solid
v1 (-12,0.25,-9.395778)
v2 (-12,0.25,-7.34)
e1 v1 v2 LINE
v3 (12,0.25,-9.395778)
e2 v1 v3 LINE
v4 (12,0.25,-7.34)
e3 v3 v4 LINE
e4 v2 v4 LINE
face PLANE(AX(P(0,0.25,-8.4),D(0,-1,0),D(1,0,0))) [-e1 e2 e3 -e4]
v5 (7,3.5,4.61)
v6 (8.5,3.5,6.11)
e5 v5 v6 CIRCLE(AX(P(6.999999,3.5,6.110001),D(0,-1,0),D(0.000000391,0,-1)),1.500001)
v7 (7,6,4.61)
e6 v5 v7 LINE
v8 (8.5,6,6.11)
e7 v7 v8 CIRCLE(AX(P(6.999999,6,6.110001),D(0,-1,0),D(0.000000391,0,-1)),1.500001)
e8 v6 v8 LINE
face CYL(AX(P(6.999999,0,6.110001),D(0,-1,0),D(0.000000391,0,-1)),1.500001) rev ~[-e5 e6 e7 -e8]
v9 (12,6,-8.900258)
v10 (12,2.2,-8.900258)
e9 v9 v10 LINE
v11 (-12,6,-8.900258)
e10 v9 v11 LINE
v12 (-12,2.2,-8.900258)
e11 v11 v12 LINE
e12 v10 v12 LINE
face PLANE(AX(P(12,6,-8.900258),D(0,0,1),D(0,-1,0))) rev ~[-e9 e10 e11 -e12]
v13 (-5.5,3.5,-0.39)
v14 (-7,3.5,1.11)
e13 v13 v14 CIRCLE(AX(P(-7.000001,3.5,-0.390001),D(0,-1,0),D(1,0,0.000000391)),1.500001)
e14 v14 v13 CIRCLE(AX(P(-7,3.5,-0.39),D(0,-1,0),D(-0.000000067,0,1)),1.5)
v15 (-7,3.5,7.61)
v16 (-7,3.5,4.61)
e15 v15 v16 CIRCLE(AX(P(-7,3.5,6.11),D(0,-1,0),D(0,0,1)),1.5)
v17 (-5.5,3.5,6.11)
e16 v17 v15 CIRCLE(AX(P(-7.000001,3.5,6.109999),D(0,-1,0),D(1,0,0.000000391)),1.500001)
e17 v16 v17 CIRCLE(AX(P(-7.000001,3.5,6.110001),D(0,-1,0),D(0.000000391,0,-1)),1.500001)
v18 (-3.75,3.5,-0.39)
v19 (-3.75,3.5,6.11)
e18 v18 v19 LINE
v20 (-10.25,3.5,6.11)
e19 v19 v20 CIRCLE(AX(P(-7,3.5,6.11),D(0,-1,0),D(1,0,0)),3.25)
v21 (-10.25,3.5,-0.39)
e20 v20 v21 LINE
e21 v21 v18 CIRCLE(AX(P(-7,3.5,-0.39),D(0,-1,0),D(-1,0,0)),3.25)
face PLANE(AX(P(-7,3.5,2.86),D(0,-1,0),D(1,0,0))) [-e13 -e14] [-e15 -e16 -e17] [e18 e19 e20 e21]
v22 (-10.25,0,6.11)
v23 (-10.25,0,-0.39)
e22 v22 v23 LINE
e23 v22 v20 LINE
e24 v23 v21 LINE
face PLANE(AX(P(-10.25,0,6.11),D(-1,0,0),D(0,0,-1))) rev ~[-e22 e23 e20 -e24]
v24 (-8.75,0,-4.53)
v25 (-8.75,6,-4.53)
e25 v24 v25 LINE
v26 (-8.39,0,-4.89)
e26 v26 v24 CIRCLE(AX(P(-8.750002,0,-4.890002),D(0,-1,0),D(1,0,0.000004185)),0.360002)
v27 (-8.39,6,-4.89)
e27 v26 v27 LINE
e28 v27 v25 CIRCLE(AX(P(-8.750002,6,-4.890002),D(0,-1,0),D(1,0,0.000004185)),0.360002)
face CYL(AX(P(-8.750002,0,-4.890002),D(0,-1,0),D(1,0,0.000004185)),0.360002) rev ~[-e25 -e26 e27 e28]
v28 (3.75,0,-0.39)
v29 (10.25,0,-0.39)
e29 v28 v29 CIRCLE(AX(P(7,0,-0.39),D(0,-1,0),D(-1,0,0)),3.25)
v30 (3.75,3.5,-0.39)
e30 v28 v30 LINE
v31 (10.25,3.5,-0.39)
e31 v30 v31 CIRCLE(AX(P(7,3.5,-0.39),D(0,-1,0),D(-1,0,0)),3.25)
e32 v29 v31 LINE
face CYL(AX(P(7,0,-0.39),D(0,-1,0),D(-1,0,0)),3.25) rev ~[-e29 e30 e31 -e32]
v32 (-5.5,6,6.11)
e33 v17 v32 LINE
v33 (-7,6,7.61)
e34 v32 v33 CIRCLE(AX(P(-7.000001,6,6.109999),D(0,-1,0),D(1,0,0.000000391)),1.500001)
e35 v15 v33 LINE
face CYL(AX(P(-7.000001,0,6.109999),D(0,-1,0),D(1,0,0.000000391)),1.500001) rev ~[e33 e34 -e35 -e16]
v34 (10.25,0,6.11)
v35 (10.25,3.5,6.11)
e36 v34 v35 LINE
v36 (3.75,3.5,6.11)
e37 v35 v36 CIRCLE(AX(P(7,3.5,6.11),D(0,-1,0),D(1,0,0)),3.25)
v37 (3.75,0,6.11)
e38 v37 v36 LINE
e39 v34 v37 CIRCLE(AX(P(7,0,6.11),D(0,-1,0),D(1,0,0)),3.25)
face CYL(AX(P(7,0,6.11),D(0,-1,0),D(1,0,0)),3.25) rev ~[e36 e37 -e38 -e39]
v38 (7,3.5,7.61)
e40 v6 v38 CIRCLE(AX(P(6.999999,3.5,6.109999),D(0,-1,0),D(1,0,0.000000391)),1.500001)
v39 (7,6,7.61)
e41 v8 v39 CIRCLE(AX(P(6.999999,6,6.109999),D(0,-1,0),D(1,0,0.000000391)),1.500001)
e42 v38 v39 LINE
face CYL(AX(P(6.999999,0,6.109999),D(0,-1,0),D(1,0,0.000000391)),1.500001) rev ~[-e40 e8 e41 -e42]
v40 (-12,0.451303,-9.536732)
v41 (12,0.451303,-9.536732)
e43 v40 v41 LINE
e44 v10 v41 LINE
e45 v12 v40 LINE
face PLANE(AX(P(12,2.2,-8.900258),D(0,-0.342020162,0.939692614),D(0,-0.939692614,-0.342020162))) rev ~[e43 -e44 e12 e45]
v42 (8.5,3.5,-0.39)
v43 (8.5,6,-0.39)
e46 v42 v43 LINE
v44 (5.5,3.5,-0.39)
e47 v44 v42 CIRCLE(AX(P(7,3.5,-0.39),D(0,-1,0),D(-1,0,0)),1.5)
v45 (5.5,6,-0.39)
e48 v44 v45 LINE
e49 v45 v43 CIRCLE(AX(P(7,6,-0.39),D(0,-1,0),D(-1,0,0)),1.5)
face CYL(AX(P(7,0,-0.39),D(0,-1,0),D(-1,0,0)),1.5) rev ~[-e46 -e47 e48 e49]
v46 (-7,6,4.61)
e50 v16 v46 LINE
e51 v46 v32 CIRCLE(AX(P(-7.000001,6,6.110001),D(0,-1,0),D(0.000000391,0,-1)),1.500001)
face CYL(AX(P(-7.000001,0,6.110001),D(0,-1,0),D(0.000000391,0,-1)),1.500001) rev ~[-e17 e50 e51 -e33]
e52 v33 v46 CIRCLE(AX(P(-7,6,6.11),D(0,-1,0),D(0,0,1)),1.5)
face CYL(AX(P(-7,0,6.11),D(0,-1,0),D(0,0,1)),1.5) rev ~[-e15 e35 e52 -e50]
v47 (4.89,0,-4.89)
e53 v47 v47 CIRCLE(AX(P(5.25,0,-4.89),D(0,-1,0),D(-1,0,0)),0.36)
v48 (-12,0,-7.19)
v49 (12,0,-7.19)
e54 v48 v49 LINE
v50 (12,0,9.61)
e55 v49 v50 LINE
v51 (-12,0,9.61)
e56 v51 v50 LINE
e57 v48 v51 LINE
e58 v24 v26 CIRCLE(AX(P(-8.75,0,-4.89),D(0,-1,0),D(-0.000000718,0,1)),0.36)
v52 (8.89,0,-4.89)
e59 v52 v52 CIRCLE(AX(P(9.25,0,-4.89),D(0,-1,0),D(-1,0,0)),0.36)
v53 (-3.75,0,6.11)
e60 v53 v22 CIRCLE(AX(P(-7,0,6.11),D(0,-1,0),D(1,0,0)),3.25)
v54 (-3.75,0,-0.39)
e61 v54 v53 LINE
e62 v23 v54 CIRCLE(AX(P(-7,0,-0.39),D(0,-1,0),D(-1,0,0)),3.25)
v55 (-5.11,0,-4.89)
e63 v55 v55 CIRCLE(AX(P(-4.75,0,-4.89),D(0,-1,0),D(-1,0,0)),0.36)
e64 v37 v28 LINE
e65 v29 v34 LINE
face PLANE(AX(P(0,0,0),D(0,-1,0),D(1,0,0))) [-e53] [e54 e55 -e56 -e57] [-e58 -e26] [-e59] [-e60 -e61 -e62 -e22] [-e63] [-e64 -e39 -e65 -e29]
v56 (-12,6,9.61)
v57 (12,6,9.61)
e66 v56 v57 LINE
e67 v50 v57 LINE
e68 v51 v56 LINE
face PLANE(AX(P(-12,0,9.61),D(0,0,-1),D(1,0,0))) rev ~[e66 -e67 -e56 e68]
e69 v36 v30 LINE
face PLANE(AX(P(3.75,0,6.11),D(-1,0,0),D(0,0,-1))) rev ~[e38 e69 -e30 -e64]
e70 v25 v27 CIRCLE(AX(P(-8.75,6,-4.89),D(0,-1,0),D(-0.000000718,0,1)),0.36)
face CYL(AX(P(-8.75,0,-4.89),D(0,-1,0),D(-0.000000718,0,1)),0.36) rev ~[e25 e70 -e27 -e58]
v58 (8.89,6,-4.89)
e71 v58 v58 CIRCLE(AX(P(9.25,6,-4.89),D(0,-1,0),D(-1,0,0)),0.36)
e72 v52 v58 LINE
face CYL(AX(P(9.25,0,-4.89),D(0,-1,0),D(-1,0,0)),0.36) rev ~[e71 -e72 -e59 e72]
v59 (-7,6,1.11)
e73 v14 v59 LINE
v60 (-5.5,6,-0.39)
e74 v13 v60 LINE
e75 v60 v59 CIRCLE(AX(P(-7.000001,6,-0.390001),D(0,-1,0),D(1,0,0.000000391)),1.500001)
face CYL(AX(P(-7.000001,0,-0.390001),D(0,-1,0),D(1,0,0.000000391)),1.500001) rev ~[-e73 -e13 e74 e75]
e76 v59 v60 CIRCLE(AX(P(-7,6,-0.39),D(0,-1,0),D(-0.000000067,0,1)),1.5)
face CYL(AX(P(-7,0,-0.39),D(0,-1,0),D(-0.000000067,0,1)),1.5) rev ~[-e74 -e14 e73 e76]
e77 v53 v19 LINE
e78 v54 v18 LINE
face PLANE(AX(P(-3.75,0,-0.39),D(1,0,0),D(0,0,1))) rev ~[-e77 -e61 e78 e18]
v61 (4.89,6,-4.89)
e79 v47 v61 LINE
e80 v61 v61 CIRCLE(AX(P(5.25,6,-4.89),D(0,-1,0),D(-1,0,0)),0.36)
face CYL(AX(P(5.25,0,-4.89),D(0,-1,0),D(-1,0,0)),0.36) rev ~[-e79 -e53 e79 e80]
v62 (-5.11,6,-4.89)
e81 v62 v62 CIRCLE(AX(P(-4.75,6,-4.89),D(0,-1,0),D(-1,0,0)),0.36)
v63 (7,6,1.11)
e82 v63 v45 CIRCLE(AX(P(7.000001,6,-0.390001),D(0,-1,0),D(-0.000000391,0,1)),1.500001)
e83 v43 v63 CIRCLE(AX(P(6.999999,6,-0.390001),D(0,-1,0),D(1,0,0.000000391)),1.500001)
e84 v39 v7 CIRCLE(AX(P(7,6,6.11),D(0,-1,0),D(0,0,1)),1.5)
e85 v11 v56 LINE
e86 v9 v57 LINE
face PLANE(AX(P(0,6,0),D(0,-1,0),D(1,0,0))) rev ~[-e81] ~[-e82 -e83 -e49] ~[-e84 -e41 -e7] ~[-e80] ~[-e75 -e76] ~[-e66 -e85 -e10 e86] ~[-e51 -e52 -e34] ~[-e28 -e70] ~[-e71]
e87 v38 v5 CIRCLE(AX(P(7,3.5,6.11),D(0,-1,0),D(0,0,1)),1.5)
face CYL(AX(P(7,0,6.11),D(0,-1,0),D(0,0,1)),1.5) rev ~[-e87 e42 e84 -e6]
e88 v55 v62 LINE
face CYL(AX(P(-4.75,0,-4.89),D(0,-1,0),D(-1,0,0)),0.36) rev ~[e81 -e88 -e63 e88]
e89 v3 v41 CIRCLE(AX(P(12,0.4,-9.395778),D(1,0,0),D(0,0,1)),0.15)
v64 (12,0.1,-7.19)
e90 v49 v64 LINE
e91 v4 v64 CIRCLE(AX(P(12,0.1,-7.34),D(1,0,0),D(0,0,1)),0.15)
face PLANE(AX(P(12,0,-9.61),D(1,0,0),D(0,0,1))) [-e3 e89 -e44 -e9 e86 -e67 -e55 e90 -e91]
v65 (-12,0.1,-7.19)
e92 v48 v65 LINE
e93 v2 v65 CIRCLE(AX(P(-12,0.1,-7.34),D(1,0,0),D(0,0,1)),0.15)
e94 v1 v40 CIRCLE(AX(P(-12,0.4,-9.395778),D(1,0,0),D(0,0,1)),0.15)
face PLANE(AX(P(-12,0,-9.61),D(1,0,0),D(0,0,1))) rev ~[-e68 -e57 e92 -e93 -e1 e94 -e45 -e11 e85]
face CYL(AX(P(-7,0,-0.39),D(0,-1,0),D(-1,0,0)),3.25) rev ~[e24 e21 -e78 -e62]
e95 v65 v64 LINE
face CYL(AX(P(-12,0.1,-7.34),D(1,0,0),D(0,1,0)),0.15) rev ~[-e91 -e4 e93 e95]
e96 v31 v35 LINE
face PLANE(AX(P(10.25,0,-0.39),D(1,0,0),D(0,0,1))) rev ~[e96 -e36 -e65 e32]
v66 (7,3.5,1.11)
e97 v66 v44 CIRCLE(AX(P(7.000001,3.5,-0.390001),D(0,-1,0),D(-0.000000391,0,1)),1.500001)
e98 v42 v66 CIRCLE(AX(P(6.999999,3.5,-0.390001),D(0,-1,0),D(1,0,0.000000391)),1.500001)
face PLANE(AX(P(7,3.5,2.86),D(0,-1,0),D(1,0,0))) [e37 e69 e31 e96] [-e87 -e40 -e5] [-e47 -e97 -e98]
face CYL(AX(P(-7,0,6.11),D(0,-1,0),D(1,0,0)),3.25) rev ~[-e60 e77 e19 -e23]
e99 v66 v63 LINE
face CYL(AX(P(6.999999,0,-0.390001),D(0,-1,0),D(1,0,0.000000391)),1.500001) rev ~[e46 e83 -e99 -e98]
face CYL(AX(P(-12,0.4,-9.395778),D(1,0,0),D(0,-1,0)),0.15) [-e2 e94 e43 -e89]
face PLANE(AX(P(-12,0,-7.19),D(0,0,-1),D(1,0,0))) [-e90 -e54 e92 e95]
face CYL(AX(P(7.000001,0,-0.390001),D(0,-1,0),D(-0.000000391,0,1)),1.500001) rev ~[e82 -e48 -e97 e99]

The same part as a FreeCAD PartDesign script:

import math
import FreeCAD as App
import Part
import Sketcher

V = App.Vector
Q = App.Units.Quantity


def edges_at(feature, points):
    """Names of the edges that pass closest to the given points."""
    edges = feature.Shape.Edges
    near = lambda p: min(range(len(edges)), key=lambda i: edges[i].distToShape(Part.Vertex(*p))[0])
    return sorted({f"Edge{near(p) + 1}" for p in points})

doc = App.newDocument("Part")
body = doc.addObject("PartDesign::Body", "Body")

# Sketch on XZ plane
sketch1 = doc.addObject("Sketcher::SketchObject", "Sketch")
body.addObject(sketch1)
sketch1.AttachmentSupport = (doc.XZ_Plane, [""])
sketch1.MapMode = "FlatFace"
sketch1.addGeometry([
    Part.LineSegment(V(-12, 9.61, 0), V(-12, -9.61, 0)),
    Part.LineSegment(V(-12, -9.61, 0), V(12, -9.61, 0)),
    Part.LineSegment(V(12, -9.61, 0), V(12, 9.61, 0)),
    Part.LineSegment(V(12, 9.61, 0), V(-12, 9.61, 0)),
], False)
sketch1.addConstraint([
    Sketcher.Constraint("Coincident", 0, 2, 1, 1),
    Sketcher.Constraint("Coincident", 1, 2, 2, 1),
    Sketcher.Constraint("Coincident", 2, 2, 3, 1),
    Sketcher.Constraint("Coincident", 3, 2, 0, 1),
    Sketcher.Constraint("Vertical", 0),
    Sketcher.Constraint("Horizontal", 1),
    Sketcher.Constraint("Vertical", 2),
    Sketcher.Constraint("Horizontal", 3),
    Sketcher.Constraint("Symmetric", 0, 2, 2, 2, -1, 1),
    Sketcher.Constraint("DistanceX", 1, 1, 1, 2, Q("24 mm")),
    Sketcher.Constraint("DistanceY", 0, 2, 0, 1, Q("19.22 mm")),
])
pad1 = doc.addObject("PartDesign::Pad", "Pad")
body.addObject(pad1)
pad1.Profile = sketch1
pad1.Length = 6
pad1.Reversed = True

# Sketch on XZ plane
sketch2 = doc.addObject("Sketcher::SketchObject", "Sketch001")
body.addObject(sketch2)
sketch2.AttachmentSupport = (doc.XZ_Plane, [""])
sketch2.MapMode = "FlatFace"
sketch2.addGeometry([
    Part.ArcOfCircle(Part.Circle(V(-7.000001, 6.109999, 0), V(0, 0, 1), 1.500001), math.radians(0.000022), math.radians(89.999978)),  # 0
    Part.ArcOfCircle(Part.Circle(V(-7, 6.11, 0), V(0, 0, 1), 1.5), math.radians(90), math.radians(270)),  # 1
    Part.ArcOfCircle(Part.Circle(V(-7.000001, 6.110001, 0), V(0, 0, 1), 1.500001), math.radians(-89.999978), math.radians(-0.000022)),  # 2
    Part.ArcOfCircle(Part.Circle(V(7, 6.11, 0), V(0, 0, 1), 1.5), math.radians(90), math.radians(270)),  # 3
    Part.ArcOfCircle(Part.Circle(V(6.999999, 6.110001, 0), V(0, 0, 1), 1.500001), math.radians(-89.999978), math.radians(-0.000022)),  # 4
    Part.ArcOfCircle(Part.Circle(V(6.999999, 6.109999, 0), V(0, 0, 1), 1.500001), math.radians(0.000022), math.radians(89.999978)),  # 5
    Part.ArcOfCircle(Part.Circle(V(7.000001, -0.390001, 0), V(0, 0, 1), 1.500001), math.radians(90.000022), math.radians(179.999978)),  # 6
    Part.ArcOfCircle(Part.Circle(V(7, -0.39, 0), V(0, 0, 1), 1.5), math.radians(180), math.radians(360)),  # 7
    Part.ArcOfCircle(Part.Circle(V(6.999999, -0.390001, 0), V(0, 0, 1), 1.500001), math.radians(0.000022), math.radians(89.999978)),  # 8
    Part.ArcOfCircle(Part.Circle(V(-7.000001, -0.390001, 0), V(0, 0, 1), 1.500001), math.radians(0.000022), math.radians(89.999978)),  # 9
    Part.ArcOfCircle(Part.Circle(V(-7, -0.39, 0), V(0, 0, 1), 1.5), math.radians(90.000004), math.radians(359.999996)),  # 10
], False)
sketch2.addConstraint([
    Sketcher.Constraint("Tangent", 0, 2, 1, 1),
    Sketcher.Constraint("Tangent", 1, 2, 2, 1),
    Sketcher.Constraint("Tangent", 2, 2, 0, 1),
    Sketcher.Constraint("Tangent", 3, 2, 4, 1),
    Sketcher.Constraint("Tangent", 4, 2, 5, 1),
    Sketcher.Constraint("Tangent", 5, 2, 3, 1),
    Sketcher.Constraint("Tangent", 6, 2, 7, 1),
    Sketcher.Constraint("Tangent", 7, 2, 8, 1),
    Sketcher.Constraint("Tangent", 8, 2, 6, 1),
    Sketcher.Constraint("Tangent", 9, 1, 10, 2),
    Sketcher.Constraint("Coincident", 10, 1, 9, 2),
    Sketcher.Constraint("Equal", 2, 3),
    Sketcher.Constraint("Equal", 5, 6),
    Sketcher.Constraint("Equal", 8, 9),
    Sketcher.Constraint("Symmetric", 0, 3, 3, 3, -2),
    Sketcher.Constraint("Symmetric", 6, 3, 9, 3, -2),
    Sketcher.Constraint("Horizontal", 5, 3, 2, 2),
    Sketcher.Constraint("Horizontal", 2, 2, 4, 2),
    Sketcher.Constraint("Horizontal", 10, 3, 6, 2),
    Sketcher.Constraint("Horizontal", 6, 2, 7, 2),
    Sketcher.Constraint("Horizontal", 7, 2, 9, 1),
    Sketcher.Constraint("Vertical", 5, 3, 6, 3),
    Sketcher.Constraint("Vertical", 10, 3, 0, 2),
    Sketcher.Constraint("Vertical", 0, 2, 1, 2),
    Sketcher.Constraint("Vertical", 8, 3, 3, 2),
    Sketcher.Constraint("Vertical", 3, 2, 5, 2),
    Sketcher.Constraint("Vertical", 5, 2, 8, 2),
    Sketcher.Constraint("Vertical", 1, 2, 10, 1),
    Sketcher.Constraint("Radius", 0, Q("1.500001 mm")),
    Sketcher.Constraint("DistanceX", 0, 3, -1, 1, Q("7.000001 mm")),
    Sketcher.Constraint("DistanceY", 10, 3, 0, 2, Q("8 mm")),
    Sketcher.Constraint("DistanceY", -1, 1, 0, 3, Q("6.109999 mm")),
])
pocket1 = doc.addObject("PartDesign::Pocket", "Pocket")
body.addObject(pocket1)
pocket1.Profile = sketch2
pocket1.Type = "ThroughAll"

# Sketch on XZ plane
sketch3 = doc.addObject("Sketcher::SketchObject", "Sketch002")
body.addObject(sketch3)
sketch3.AttachmentSupport = (doc.XZ_Plane, [""])
sketch3.MapMode = "FlatFace"
sketch3.addGeometry([
    Part.ArcOfCircle(Part.Circle(V(-7, 6.11, 0), V(0, 0, 1), 3.25), math.radians(0), math.radians(180)),  # 0
    Part.LineSegment(V(-10.25, 6.11, 0), V(-10.25, -0.39, 0)),  # 1
    Part.ArcOfCircle(Part.Circle(V(-7, -0.39, 0), V(0, 0, 1), 3.25), math.radians(180), math.radians(360)),  # 2
    Part.LineSegment(V(-3.75, -0.39, 0), V(-3.75, 6.11, 0)),  # 3
    Part.ArcOfCircle(Part.Circle(V(7, -0.39, 0), V(0, 0, 1), 3.25), math.radians(180), math.radians(360)),  # 4
    Part.LineSegment(V(10.25, -0.39, 0), V(10.25, 6.11, 0)),  # 5
    Part.ArcOfCircle(Part.Circle(V(7, 6.11, 0), V(0, 0, 1), 3.25), math.radians(0), math.radians(180)),  # 6
    Part.LineSegment(V(3.75, 6.11, 0), V(3.75, -0.39, 0)),  # 7
], False)
sketch3.addConstraint([
    Sketcher.Constraint("Tangent", 0, 2, 1, 1),
    Sketcher.Constraint("Tangent", 1, 2, 2, 1),
    Sketcher.Constraint("Tangent", 2, 2, 3, 1),
    Sketcher.Constraint("Tangent", 3, 2, 0, 1),
    Sketcher.Constraint("Tangent", 4, 2, 5, 1),
    Sketcher.Constraint("Tangent", 5, 2, 6, 1),
    Sketcher.Constraint("Tangent", 6, 2, 7, 1),
    Sketcher.Constraint("Tangent", 7, 2, 4, 1),
    Sketcher.Constraint("Vertical", 1),
    Sketcher.Constraint("Vertical", 3),
    Sketcher.Constraint("Vertical", 5),
    Sketcher.Constraint("Vertical", 7),
    Sketcher.Constraint("Equal", 2, 4),
    Sketcher.Constraint("Symmetric", 2, 3, 4, 3, -2),
    Sketcher.Constraint("Horizontal", 0, 3, 6, 3),
    Sketcher.Constraint("Radius", 0, Q("3.25 mm")),
    Sketcher.Constraint("DistanceY", 1, 2, 1, 1, Q("6.5 mm")),
    Sketcher.Constraint("DistanceX", 0, 3, -1, 1, Q("7 mm")),
    Sketcher.Constraint("DistanceY", -1, 1, 0, 3, Q("6.11 mm")),
])
pocket2 = doc.addObject("PartDesign::Pocket", "Pocket001")
body.addObject(pocket2)
pocket2.Profile = sketch3
pocket2.Length = 3.5

# Sketch on XZ plane
sketch4 = doc.addObject("Sketcher::SketchObject", "Sketch003")
body.addObject(sketch4)
sketch4.AttachmentSupport = (doc.XZ_Plane, [""])
sketch4.MapMode = "FlatFace"
sketch4.addGeometry([
    Part.LineSegment(V(-12, -7.19, 0), V(-12, -9.61, 0)),
    Part.LineSegment(V(-12, -9.61, 0), V(12, -9.61, 0)),
    Part.LineSegment(V(12, -9.61, 0), V(12, -7.19, 0)),
    Part.LineSegment(V(12, -7.19, 0), V(-12, -7.19, 0)),
], False)
sketch4.addConstraint([
    Sketcher.Constraint("Coincident", 0, 2, 1, 1),
    Sketcher.Constraint("Coincident", 1, 2, 2, 1),
    Sketcher.Constraint("Coincident", 2, 2, 3, 1),
    Sketcher.Constraint("Coincident", 3, 2, 0, 1),
    Sketcher.Constraint("Vertical", 0),
    Sketcher.Constraint("Horizontal", 1),
    Sketcher.Constraint("Vertical", 2),
    Sketcher.Constraint("Horizontal", 3),
    Sketcher.Constraint("DistanceX", 1, 1, 1, 2, Q("24 mm")),
    Sketcher.Constraint("DistanceX", 0, 2, -1, 1, Q("12 mm")),
    Sketcher.Constraint("DistanceY", 0, 2, 0, 1, Q("2.42 mm")),
    Sketcher.Constraint("DistanceY", 0, 2, -1, 1, Q("9.61 mm")),
])
pocket3 = doc.addObject("PartDesign::Pocket", "Pocket002")
body.addObject(pocket3)
pocket3.Profile = sketch4
pocket3.Length = 0.25

# Sketch on XZ plane
sketch5 = doc.addObject("Sketcher::SketchObject", "Sketch004")
body.addObject(sketch5)
sketch5.AttachmentSupport = (doc.XZ_Plane, [""])
sketch5.MapMode = "FlatFace"
sketch5.addGeometry([
    Part.ArcOfCircle(Part.Circle(V(-8.750002, -4.890002, 0), V(0, 0, 1), 0.360002), math.radians(0.00024), math.radians(89.99976)),  # 0
    Part.ArcOfCircle(Part.Circle(V(-8.75, -4.89, 0), V(0, 0, 1), 0.36), math.radians(90.000041), math.radians(359.999959)),  # 1
    Part.Circle(V(9.25, -4.89, 0), V(0, 0, 1), 0.36),  # 2
    Part.Circle(V(5.25, -4.89, 0), V(0, 0, 1), 0.36),  # 3
    Part.Circle(V(-4.75, -4.89, 0), V(0, 0, 1), 0.36),  # 4
], False)
sketch5.addConstraint([
    Sketcher.Constraint("Coincident", 0, 1, 1, 2),
    Sketcher.Constraint("Coincident", 1, 1, 0, 2),
    Sketcher.Constraint("Equal", 0, 1),
    Sketcher.Constraint("Equal", 1, 2),
    Sketcher.Constraint("Equal", 2, 3),
    Sketcher.Constraint("Equal", 3, 4),
    Sketcher.Constraint("Horizontal", 1, 3, 2, 3),
    Sketcher.Constraint("Horizontal", 2, 3, 3, 3),
    Sketcher.Constraint("Horizontal", 3, 3, 4, 3),
    Sketcher.Constraint("Horizontal", 4, 3, 0, 1),
    Sketcher.Constraint("Vertical", 0, 3, 1, 1),
    Sketcher.Constraint("Diameter", 2, Q("0.72 mm")),
    Sketcher.Constraint("DistanceX", 1, 3, 2, 3, Q("18 mm")),
    Sketcher.Constraint("DistanceX", 3, 3, 2, 3, Q("4 mm")),
    Sketcher.Constraint("DistanceX", 1, 3, 4, 3, Q("4 mm")),
    Sketcher.Constraint("DistanceX", 0, 3, -1, 1, Q("8.750002 mm")),
    Sketcher.Constraint("DistanceY", 0, 3, -1, 1, Q("4.890002 mm")),
])
pocket4 = doc.addObject("PartDesign::Pocket", "Pocket003")
body.addObject(pocket4)
pocket4.Profile = sketch5
pocket4.Type = "ThroughAll"

# Sketch on YZ plane
sketch6 = doc.addObject("Sketcher::SketchObject", "Sketch005")
body.addObject(sketch6)
sketch6.AttachmentSupport = (doc.YZ_Plane, [""])
sketch6.MapMode = "FlatFace"
sketch6.AttachmentOffset = App.Placement(V(0, 0, 12), App.Rotation())
sketch6.addGeometry([
    Part.LineSegment(V(2.2, -8.900258, 0), V(0.25, -9.61, 0)),
    Part.LineSegment(V(0.25, -9.61, 0), V(6, -9.61, 0)),
    Part.LineSegment(V(6, -9.61, 0), V(6, -8.900258, 0)),
    Part.LineSegment(V(6, -8.900258, 0), V(2.2, -8.900258, 0)),
], False)
sketch6.addConstraint([
    Sketcher.Constraint("Coincident", 0, 2, 1, 1),
    Sketcher.Constraint("Coincident", 1, 2, 2, 1),
    Sketcher.Constraint("Coincident", 2, 2, 3, 1),
    Sketcher.Constraint("Coincident", 3, 2, 0, 1),
    Sketcher.Constraint("Horizontal", 1),
    Sketcher.Constraint("Vertical", 2),
    Sketcher.Constraint("Horizontal", 3),
    Sketcher.Constraint("Angle", 0, Q("-159.999999 deg")),
    Sketcher.Constraint("DistanceX", 3, 2, 3, 1, Q("3.8 mm")),
    Sketcher.Constraint("DistanceX", -1, 1, 1, 2, Q("6 mm")),
    Sketcher.Constraint("DistanceX", 1, 1, 1, 2, Q("5.75 mm")),
    Sketcher.Constraint("DistanceY", 0, 2, -1, 1, Q("9.61 mm")),
])
pocket5 = doc.addObject("PartDesign::Pocket", "Pocket004")
body.addObject(pocket5)
pocket5.Profile = sketch6
pocket5.Type = "ThroughAll"
doc.recompute()

fillet = doc.addObject("PartDesign::Fillet", "Fillet")
body.addObject(fillet)
fillet.Base = (pocket5, edges_at(pocket5, [(0, 0.25, -9.61)]))
fillet.Radius = 0.15
doc.recompute()

fillet2 = doc.addObject("PartDesign::Fillet", "Fillet001")
body.addObject(fillet2)
fillet2.Base = (fillet, edges_at(fillet, [(0, 0.25, -7.19)]))
fillet2.Radius = 0.15

doc.recompute()
